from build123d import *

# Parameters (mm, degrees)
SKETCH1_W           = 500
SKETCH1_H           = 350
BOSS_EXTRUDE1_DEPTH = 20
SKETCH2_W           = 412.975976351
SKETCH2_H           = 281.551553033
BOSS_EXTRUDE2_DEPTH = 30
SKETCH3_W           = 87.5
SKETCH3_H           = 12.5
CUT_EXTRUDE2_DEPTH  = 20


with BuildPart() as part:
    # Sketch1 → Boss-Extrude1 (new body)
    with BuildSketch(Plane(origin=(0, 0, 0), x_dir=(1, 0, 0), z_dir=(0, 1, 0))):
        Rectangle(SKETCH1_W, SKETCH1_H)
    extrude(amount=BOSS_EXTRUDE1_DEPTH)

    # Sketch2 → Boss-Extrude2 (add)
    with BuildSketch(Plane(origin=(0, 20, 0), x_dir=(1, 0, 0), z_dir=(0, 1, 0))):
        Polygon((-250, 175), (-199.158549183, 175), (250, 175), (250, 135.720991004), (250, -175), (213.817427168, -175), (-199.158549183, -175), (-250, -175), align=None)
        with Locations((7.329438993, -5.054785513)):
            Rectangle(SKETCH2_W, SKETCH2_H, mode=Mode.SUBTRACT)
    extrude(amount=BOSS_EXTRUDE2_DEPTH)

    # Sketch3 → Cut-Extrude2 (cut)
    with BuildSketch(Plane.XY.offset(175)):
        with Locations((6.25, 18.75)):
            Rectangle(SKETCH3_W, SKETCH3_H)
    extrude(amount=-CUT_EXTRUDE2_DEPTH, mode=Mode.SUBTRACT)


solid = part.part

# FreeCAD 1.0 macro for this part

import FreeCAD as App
import Part
import Sketcher

doc = App.newDocument("Part")
params = doc.addObject("Spreadsheet::Sheet", "Params")
for row, (alias, value) in enumerate([
    ("sketch1_width", "500 mm"),
    ("sketch1_height", "350 mm"),
    ("pad1_length", "20 mm"),
    ("sketch2_width", "500 mm"),
    ("sketch2_height", "350 mm"),
    ("pad2_length", "30 mm"),
    ("sketch3_width", "87.5 mm"),
    ("sketch3_height", "12.5 mm"),
    ("pocket1_length", "20 mm"),
], start=1):
    params.set(f"A{row}", alias)
    params.set(f"B{row}", "=" + value)
    params.setAlias(f"B{row}", alias)

body = doc.addObject("PartDesign::Body", "Body")

# Sketch on XZ plane
sketch1 = body.newObject("Sketcher::SketchObject", "Sketch")
sketch1.AttachmentSupport = (doc.getObject("XZ_Plane"), [""])
sketch1.MapMode = "FlatFace"
sketch1.addGeometry(Part.LineSegment(App.Vector(-250, -175, 0), App.Vector(-250, 175, 0)), False)
sketch1.addGeometry(Part.LineSegment(App.Vector(-250, 175, 0), App.Vector(250, 175, 0)), False)
sketch1.addGeometry(Part.LineSegment(App.Vector(250, 175, 0), App.Vector(250, -175, 0)), False)
sketch1.addGeometry(Part.LineSegment(App.Vector(250, -175, 0), App.Vector(-250, -175, 0)), False)
sketch1.addConstraint(Sketcher.Constraint("Coincident", 0, 2, 1, 1))
sketch1.addConstraint(Sketcher.Constraint("Coincident", 1, 2, 2, 1))
sketch1.addConstraint(Sketcher.Constraint("Coincident", 2, 2, 3, 1))
sketch1.addConstraint(Sketcher.Constraint("Coincident", 3, 2, 0, 1))
sketch1.addConstraint(Sketcher.Constraint("Vertical", 0))
sketch1.addConstraint(Sketcher.Constraint("Horizontal", 1))
sketch1.addConstraint(Sketcher.Constraint("Vertical", 2))
sketch1.addConstraint(Sketcher.Constraint("Horizontal", 3))
sketch1.addConstraint(Sketcher.Constraint("Symmetric", 0, 2, 2, 2, -1, 1))
sketch1.addConstraint(Sketcher.Constraint("DistanceX", 1, 1, 1, 2, 500.0))
sketch1.addConstraint(Sketcher.Constraint("DistanceY", 0, 1, 0, 2, 350.0))
sketch1.setExpression("Constraints[9]", "Params.sketch1_width")
sketch1.setExpression("Constraints[10]", "Params.sketch1_height")
pad1 = body.newObject("PartDesign::Pad", "Pad")
pad1.Profile = sketch1
pad1.setExpression("Length", "Params.pad1_length")
pad1.Reversed = True

# Sketch on XZ plane
sketch2 = body.newObject("Sketcher::SketchObject", "Sketch001")
sketch2.AttachmentSupport = (doc.getObject("XZ_Plane"), [""])
sketch2.MapMode = "FlatFace"
sketch2.AttachmentOffset = App.Placement(App.Vector(0, 0, -20), App.Rotation())
sketch2.addGeometry(Part.LineSegment(App.Vector(250, -175, 0), App.Vector(-250, -175, 0)), False)
sketch2.addGeometry(Part.LineSegment(App.Vector(-250, -175, 0), App.Vector(-250, 175, 0)), False)
sketch2.addGeometry(Part.LineSegment(App.Vector(-250, 175, 0), App.Vector(250, 175, 0)), False)
sketch2.addGeometry(Part.LineSegment(App.Vector(250, 175, 0), App.Vector(250, -175, 0)), False)
sketch2.addGeometry(Part.LineSegment(App.Vector(-199, 146, 0), App.Vector(-199, -136, 0)), False)
sketch2.addGeometry(Part.LineSegment(App.Vector(-199, -136, 0), App.Vector(214, -136, 0)), False)
sketch2.addGeometry(Part.LineSegment(App.Vector(214, -136, 0), App.Vector(214, 146, 0)), False)
sketch2.addGeometry(Part.LineSegment(App.Vector(214, 146, 0), App.Vector(-199, 146, 0)), False)
sketch2.addConstraint(Sketcher.Constraint("Coincident", 0, 2, 1, 1))
sketch2.addConstraint(Sketcher.Constraint("Coincident", 1, 2, 2, 1))
sketch2.addConstraint(Sketcher.Constraint("Coincident", 2, 2, 3, 1))
sketch2.addConstraint(Sketcher.Constraint("Coincident", 3, 2, 0, 1))
sketch2.addConstraint(Sketcher.Constraint("Coincident", 4, 2, 5, 1))
sketch2.addConstraint(Sketcher.Constraint("Coincident", 5, 2, 6, 1))
sketch2.addConstraint(Sketcher.Constraint("Coincident", 6, 2, 7, 1))
sketch2.addConstraint(Sketcher.Constraint("Coincident", 7, 2, 4, 1))
sketch2.addConstraint(Sketcher.Constraint("Horizontal", 0))
sketch2.addConstraint(Sketcher.Constraint("Vertical", 1))
sketch2.addConstraint(Sketcher.Constraint("Horizontal", 2))
sketch2.addConstraint(Sketcher.Constraint("Vertical", 3))
sketch2.addConstraint(Sketcher.Constraint("Vertical", 4))
sketch2.addConstraint(Sketcher.Constraint("Horizontal", 5))
sketch2.addConstraint(Sketcher.Constraint("Vertical", 6))
sketch2.addConstraint(Sketcher.Constraint("Horizontal", 7))
sketch2.addConstraint(Sketcher.Constraint("Symmetric", 0, 2, 2, 2, -1, 1))
sketch2.addConstraint(Sketcher.Constraint("DistanceX", 0, 2, 0, 1, 500.0))
sketch2.addConstraint(Sketcher.Constraint("DistanceY", 1, 1, 1, 2, 350.0))
sketch2.addConstraint(Sketcher.Constraint("DistanceX", 5, 1, 5, 2, 412.975976))
sketch2.addConstraint(Sketcher.Constraint("DistanceY", 4, 2, 4, 1, 281.551553))
sketch2.addConstraint(Sketcher.Constraint("DistanceX", 4, 2, -1, 1, 199.158549))
sketch2.addConstraint(Sketcher.Constraint("DistanceY", 4, 2, -1, 1, 135.720991))
sketch2.setExpression("Constraints[17]", "Params.sketch2_width")
sketch2.setExpression("Constraints[18]", "Params.sketch2_height")
pad2 = body.newObject("PartDesign::Pad", "Pad001")
pad2.Profile = sketch2
pad2.setExpression("Length", "Params.pad2_length")
pad2.Reversed = True

# Sketch on XY plane
sketch3 = body.newObject("Sketcher::SketchObject", "Sketch002")
sketch3.AttachmentSupport = (doc.getObject("XY_Plane"), [""])
sketch3.MapMode = "FlatFace"
sketch3.AttachmentOffset = App.Placement(App.Vector(0, 0, 175), App.Rotation())
sketch3.addGeometry(Part.LineSegment(App.Vector(-38, 25, 0), App.Vector(-38, 12, 0)), False)
sketch3.addGeometry(Part.LineSegment(App.Vector(-38, 12, 0), App.Vector(50, 12, 0)), False)
sketch3.addGeometry(Part.LineSegment(App.Vector(50, 12, 0), App.Vector(50, 25, 0)), False)
sketch3.addGeometry(Part.LineSegment(App.Vector(50, 25, 0), App.Vector(-38, 25, 0)), False)
sketch3.addConstraint(Sketcher.Constraint("Coincident", 0, 2, 1, 1))
sketch3.addConstraint(Sketcher.Constraint("Coincident", 1, 2, 2, 1))
sketch3.addConstraint(Sketcher.Constraint("Coincident", 2, 2, 3, 1))
sketch3.addConstraint(Sketcher.Constraint("Coincident", 3, 2, 0, 1))
sketch3.addConstraint(Sketcher.Constraint("Vertical", 0))
sketch3.addConstraint(Sketcher.Constraint("Horizontal", 1))
sketch3.addConstraint(Sketcher.Constraint("Vertical", 2))
sketch3.addConstraint(Sketcher.Constraint("Horizontal", 3))
sketch3.addConstraint(Sketcher.Constraint("DistanceX", 1, 1, 1, 2, 87.5))
sketch3.addConstraint(Sketcher.Constraint("DistanceY", 0, 2, 0, 1, 12.5))
sketch3.addConstraint(Sketcher.Constraint("DistanceX", -1, 1, 1, 2, 50.0))
sketch3.addConstraint(Sketcher.Constraint("DistanceY", -1, 1, 2, 2, 25.0))
sketch3.setExpression("Constraints[8]", "Params.sketch3_width")
sketch3.setExpression("Constraints[9]", "Params.sketch3_height")
pocket1 = body.newObject("PartDesign::Pocket", "Pocket")
pocket1.Profile = sketch3
pocket1.setExpression("Length", "Params.pocket1_length")

doc.recompute()
